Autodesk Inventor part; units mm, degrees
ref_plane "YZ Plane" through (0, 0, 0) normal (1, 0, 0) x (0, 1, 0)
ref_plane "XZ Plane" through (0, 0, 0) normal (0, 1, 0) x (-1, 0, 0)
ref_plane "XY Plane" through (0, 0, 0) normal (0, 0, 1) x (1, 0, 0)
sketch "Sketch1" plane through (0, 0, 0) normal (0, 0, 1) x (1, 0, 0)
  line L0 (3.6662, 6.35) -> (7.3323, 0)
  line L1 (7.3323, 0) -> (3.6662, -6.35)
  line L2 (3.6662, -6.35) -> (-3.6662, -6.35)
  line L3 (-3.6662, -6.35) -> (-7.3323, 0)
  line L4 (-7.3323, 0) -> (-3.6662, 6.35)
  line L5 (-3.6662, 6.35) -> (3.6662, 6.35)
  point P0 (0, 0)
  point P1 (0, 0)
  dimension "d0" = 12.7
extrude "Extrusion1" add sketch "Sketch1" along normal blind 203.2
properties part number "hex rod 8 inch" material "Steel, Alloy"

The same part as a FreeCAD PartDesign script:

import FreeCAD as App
import Part
import Sketcher

V = App.Vector
Q = App.Units.Quantity

doc = App.newDocument("Part")
body = doc.addObject("PartDesign::Body", "Body")

# Sketch on XY plane
sketch1 = body.newObject("Sketcher::SketchObject", "Sketch")
sketch1.AttachmentSupport = (doc.getObject("XY_Plane"), [""])
sketch1.MapMode = "FlatFace"
sketch1.addGeometry([
    Part.LineSegment(V(7.3323, 0, 0), V(3.6662, 6.35, 0)),  # 0
    Part.LineSegment(V(3.6662, 6.35, 0), V(-3.6662, 6.35, 0)),  # 1
    Part.LineSegment(V(-3.6662, 6.35, 0), V(-7.3323, 0, 0)),  # 2
    Part.LineSegment(V(-7.3323, 0, 0), V(-3.6662, -6.35, 0)),  # 3
    Part.LineSegment(V(-3.6662, -6.35, 0), V(3.6662, -6.35, 0)),  # 4
    Part.LineSegment(V(3.6662, -6.35, 0), V(7.3323, 0, 0)),  # 5
], False)
sketch1.addConstraint([
    Sketcher.Constraint("Coincident", 0, 2, 1, 1),
    Sketcher.Constraint("Coincident", 1, 2, 2, 1),
    Sketcher.Constraint("Coincident", 2, 2, 3, 1),
    Sketcher.Constraint("Coincident", 3, 2, 4, 1),
    Sketcher.Constraint("Coincident", 4, 2, 5, 1),
    Sketcher.Constraint("Coincident", 5, 2, 0, 1),
    Sketcher.Constraint("Horizontal", 1),
    Sketcher.Constraint("Horizontal", 4),
    Sketcher.Constraint("Symmetric", 0, 2, 3, 2, -1, 1),
    Sketcher.Constraint("Symmetric", 2, 2, 5, 2, -1, 1),
    Sketcher.Constraint("PointOnObject", 2, 2, -1),
    Sketcher.Constraint("Parallel", 2, 5),
    Sketcher.Constraint("Vertical", 1, 2, 3, 2),
    Sketcher.Constraint("DistanceY", 3, 2, 1, 2, Q("0.5 in")),
    Sketcher.Constraint("Angle", 0, Q("119.9995 deg")),
    Sketcher.Constraint("DistanceX", 2, 2, 0, 2, Q("0.433 in")),
])
pad1 = body.newObject("PartDesign::Pad", "Pad")
pad1.Profile = sketch1
pad1.Length = Q("8 in")

doc.recompute()
